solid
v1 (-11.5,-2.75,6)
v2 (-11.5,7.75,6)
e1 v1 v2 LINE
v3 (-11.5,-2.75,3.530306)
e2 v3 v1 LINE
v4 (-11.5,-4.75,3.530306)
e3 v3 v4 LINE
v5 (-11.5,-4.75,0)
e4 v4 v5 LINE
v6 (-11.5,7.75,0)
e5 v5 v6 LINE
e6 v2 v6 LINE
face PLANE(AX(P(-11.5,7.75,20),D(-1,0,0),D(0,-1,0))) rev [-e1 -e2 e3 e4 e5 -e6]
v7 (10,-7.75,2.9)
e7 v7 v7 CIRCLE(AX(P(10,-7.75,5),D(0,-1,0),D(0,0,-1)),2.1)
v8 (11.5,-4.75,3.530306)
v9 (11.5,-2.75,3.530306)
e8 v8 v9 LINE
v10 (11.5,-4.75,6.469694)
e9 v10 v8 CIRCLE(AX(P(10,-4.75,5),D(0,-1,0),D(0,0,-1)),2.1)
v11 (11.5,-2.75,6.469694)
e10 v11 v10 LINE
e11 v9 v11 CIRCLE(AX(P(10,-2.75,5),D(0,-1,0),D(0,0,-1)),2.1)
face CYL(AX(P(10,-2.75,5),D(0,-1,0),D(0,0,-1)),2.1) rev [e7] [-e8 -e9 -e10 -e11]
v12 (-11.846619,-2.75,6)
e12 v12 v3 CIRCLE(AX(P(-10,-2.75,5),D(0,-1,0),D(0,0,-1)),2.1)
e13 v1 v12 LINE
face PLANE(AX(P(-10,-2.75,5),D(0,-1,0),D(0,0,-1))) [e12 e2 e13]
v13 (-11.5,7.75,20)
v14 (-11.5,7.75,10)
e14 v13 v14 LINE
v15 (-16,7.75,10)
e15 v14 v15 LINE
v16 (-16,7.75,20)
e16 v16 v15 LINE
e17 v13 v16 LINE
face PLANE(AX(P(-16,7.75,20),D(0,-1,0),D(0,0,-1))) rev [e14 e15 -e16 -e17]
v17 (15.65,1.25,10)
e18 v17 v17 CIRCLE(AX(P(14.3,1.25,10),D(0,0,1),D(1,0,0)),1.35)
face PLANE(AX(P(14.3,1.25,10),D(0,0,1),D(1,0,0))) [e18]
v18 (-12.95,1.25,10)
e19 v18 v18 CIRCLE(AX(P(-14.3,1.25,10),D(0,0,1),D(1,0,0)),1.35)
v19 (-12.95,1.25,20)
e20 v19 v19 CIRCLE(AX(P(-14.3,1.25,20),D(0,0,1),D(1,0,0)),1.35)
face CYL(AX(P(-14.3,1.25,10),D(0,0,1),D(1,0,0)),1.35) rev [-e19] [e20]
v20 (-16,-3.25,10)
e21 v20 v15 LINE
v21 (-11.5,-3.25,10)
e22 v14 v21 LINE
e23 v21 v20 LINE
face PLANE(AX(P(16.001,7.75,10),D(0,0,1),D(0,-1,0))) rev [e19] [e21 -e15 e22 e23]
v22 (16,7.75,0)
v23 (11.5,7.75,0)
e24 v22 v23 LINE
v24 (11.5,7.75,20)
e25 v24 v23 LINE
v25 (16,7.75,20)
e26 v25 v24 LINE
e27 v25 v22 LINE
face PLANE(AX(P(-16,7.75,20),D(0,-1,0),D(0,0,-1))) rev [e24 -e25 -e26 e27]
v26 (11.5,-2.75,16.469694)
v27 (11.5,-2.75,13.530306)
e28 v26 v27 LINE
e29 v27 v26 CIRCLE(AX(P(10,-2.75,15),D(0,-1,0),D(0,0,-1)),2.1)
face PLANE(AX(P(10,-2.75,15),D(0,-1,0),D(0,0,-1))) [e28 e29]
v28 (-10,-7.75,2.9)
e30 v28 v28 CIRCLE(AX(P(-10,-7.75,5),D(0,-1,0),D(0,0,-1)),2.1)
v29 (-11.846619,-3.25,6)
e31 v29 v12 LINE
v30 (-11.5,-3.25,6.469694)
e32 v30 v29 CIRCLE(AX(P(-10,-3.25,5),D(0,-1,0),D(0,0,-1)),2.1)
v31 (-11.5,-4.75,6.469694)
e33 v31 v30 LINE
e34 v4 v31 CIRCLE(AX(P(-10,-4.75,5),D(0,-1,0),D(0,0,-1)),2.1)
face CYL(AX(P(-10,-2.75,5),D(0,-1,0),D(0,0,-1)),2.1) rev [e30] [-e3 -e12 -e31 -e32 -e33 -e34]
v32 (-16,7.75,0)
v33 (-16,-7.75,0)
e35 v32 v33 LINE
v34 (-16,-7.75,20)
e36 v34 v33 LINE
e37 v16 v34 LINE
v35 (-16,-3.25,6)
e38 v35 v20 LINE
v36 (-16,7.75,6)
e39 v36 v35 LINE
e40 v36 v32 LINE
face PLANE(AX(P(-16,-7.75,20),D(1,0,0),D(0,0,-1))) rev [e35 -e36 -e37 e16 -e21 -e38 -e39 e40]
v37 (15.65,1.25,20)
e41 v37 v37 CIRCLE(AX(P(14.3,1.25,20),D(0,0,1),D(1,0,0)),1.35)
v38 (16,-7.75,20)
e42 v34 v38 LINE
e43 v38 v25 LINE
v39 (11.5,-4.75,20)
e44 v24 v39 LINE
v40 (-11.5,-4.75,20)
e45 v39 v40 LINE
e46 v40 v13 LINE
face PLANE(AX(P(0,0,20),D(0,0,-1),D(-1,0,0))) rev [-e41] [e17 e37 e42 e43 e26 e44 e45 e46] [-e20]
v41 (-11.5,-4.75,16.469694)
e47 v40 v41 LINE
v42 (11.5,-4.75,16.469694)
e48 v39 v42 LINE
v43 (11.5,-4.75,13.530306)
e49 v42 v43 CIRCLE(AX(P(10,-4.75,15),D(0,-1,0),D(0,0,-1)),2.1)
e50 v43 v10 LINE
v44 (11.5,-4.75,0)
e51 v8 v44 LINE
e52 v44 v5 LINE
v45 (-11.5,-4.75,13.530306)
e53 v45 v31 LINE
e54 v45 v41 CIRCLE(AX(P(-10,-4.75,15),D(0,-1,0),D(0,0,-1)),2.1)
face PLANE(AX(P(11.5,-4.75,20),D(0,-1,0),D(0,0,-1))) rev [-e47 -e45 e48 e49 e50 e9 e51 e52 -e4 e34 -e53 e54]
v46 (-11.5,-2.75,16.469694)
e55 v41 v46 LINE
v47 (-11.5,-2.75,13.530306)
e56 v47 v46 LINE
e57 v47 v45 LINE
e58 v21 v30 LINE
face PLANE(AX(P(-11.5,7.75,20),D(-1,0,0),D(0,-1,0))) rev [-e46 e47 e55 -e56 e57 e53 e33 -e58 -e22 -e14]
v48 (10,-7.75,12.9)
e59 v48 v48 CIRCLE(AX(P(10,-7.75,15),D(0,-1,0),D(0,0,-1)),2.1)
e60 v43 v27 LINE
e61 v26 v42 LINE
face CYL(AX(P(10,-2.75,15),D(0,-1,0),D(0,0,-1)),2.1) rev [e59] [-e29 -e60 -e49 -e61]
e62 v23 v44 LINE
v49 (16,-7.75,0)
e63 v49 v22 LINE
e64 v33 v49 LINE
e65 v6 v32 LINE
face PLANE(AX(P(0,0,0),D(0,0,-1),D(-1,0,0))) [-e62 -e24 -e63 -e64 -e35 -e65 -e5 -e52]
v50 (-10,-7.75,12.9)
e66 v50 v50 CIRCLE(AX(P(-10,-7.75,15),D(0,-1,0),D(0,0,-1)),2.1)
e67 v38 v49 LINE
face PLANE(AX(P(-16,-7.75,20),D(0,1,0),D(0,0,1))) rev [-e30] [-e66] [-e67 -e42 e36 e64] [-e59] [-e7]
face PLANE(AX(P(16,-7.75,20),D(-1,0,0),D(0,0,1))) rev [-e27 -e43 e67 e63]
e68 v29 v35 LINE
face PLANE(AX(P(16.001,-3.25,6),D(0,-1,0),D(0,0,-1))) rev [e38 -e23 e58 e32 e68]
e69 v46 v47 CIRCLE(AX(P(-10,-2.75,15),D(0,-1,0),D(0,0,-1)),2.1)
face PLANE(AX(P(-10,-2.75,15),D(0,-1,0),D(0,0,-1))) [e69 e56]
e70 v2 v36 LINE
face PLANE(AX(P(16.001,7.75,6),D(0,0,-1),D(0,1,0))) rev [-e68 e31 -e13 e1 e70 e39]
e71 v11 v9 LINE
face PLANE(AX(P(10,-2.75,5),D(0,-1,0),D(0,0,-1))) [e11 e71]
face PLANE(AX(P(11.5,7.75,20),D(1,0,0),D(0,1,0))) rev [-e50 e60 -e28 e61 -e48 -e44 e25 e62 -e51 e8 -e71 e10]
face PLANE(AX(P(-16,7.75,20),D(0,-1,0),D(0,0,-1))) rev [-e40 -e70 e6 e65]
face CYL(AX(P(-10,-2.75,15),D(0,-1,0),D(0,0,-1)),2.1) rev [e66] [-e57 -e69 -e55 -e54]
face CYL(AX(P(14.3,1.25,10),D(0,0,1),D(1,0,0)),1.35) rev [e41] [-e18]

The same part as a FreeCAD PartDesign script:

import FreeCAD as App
import Part
import Sketcher
from FreeCAD import Vector
Q = App.Units.Quantity

doc = App.newDocument("Part")
body = doc.addObject("PartDesign::Body", "Body")

# Sketch on XY plane
sketch1 = body.newObject("Sketcher::SketchObject", "Sketch")
sketch1.AttachmentSupport = (doc.getObject("XY_Plane"), [""])
sketch1.MapMode = "FlatFace"
sketch1.addGeometry(Part.LineSegment(Vector(-16, 8, 0), Vector(-16, -8, 0)), False)
sketch1.addGeometry(Part.LineSegment(Vector(-16, -8, 0), Vector(16, -8, 0)), False)
sketch1.addGeometry(Part.LineSegment(Vector(16, -8, 0), Vector(16, 8, 0)), False)
sketch1.addGeometry(Part.LineSegment(Vector(16, 8, 0), Vector(-16, 8, 0)), False)
sketch1.addConstraint(Sketcher.Constraint("Coincident", 0, 2, 1, 1))
sketch1.addConstraint(Sketcher.Constraint("Coincident", 1, 2, 2, 1))
sketch1.addConstraint(Sketcher.Constraint("Coincident", 2, 2, 3, 1))
sketch1.addConstraint(Sketcher.Constraint("Coincident", 3, 2, 0, 1))
sketch1.addConstraint(Sketcher.Constraint("Vertical", 0))
sketch1.addConstraint(Sketcher.Constraint("Horizontal", 1))
sketch1.addConstraint(Sketcher.Constraint("Vertical", 2))
sketch1.addConstraint(Sketcher.Constraint("Horizontal", 3))
sketch1.addConstraint(Sketcher.Constraint("Symmetric", 0, 2, 2, 2, -1, 1))
sketch1.addConstraint(Sketcher.Constraint("DistanceX", 1, 1, 1, 2, Q("32 mm")))
sketch1.addConstraint(Sketcher.Constraint("DistanceY", 0, 2, 0, 1, Q("15.5 mm")))
pad1 = body.newObject("PartDesign::Pad", "Pad")
pad1.Profile = sketch1
pad1.Length = 20

# Sketch on XY plane
sketch2 = body.newObject("Sketcher::SketchObject", "Sketch001")
sketch2.AttachmentSupport = (doc.getObject("XY_Plane"), [""])
sketch2.MapMode = "FlatFace"
sketch2.addGeometry(Part.LineSegment(Vector(12, 8, 0), Vector(12, -5, 0)), False)
sketch2.addGeometry(Part.LineSegment(Vector(12, -5, 0), Vector(-12, -5, 0)), False)
sketch2.addGeometry(Part.LineSegment(Vector(-12, -5, 0), Vector(-12, 8, 0)), False)
sketch2.addGeometry(Part.LineSegment(Vector(-12, 8, 0), Vector(12, 8, 0)), False)
sketch2.addConstraint(Sketcher.Constraint("Coincident", 0, 2, 1, 1))
sketch2.addConstraint(Sketcher.Constraint("Coincident", 1, 2, 2, 1))
sketch2.addConstraint(Sketcher.Constraint("Coincident", 2, 2, 3, 1))
sketch2.addConstraint(Sketcher.Constraint("Coincident", 3, 2, 0, 1))
sketch2.addConstraint(Sketcher.Constraint("Vertical", 0))
sketch2.addConstraint(Sketcher.Constraint("Horizontal", 1))
sketch2.addConstraint(Sketcher.Constraint("Vertical", 2))
sketch2.addConstraint(Sketcher.Constraint("Horizontal", 3))
sketch2.addConstraint(Sketcher.Constraint("DistanceX", 1, 2, 1, 1, Q("23 mm")))
sketch2.addConstraint(Sketcher.Constraint("DistanceY", 0, 2, 0, 1, Q("12.5 mm")))
sketch2.addConstraint(Sketcher.Constraint("DistanceX", -1, 1, 0, 2, Q("11.5 mm")))
sketch2.addConstraint(Sketcher.Constraint("DistanceY", 0, 2, -1, 1, Q("4.75 mm")))
pocket1 = body.newObject("PartDesign::Pocket", "Pocket")
pocket1.Profile = sketch2
pocket1.Type = "ThroughAll"
pocket1.Reversed = True

# Sketch on YZ plane
sketch3 = body.newObject("Sketcher::SketchObject", "Sketch002")
sketch3.AttachmentSupport = (doc.getObject("YZ_Plane"), [""])
sketch3.MapMode = "FlatFace"
sketch3.AttachmentOffset = App.Placement(Vector(0, 0, -16), App.Rotation())
sketch3.addGeometry(Part.LineSegment(Vector(7.8, 6, 0), Vector(-3.2, 6, 0)), False)
sketch3.addGeometry(Part.LineSegment(Vector(-3.2, 6, 0), Vector(-3.2, 10, 0)), False)
sketch3.addGeometry(Part.LineSegment(Vector(-3.2, 10, 0), Vector(7.8, 10, 0)), False)
sketch3.addGeometry(Part.LineSegment(Vector(7.8, 10, 0), Vector(7.8, 6, 0)), False)
sketch3.addConstraint(Sketcher.Constraint("Coincident", 0, 2, 1, 1))
sketch3.addConstraint(Sketcher.Constraint("Coincident", 1, 2, 2, 1))
sketch3.addConstraint(Sketcher.Constraint("Coincident", 2, 2, 3, 1))
sketch3.addConstraint(Sketcher.Constraint("Coincident", 3, 2, 0, 1))
sketch3.addConstraint(Sketcher.Constraint("Horizontal", 0))
sketch3.addConstraint(Sketcher.Constraint("Vertical", 1))
sketch3.addConstraint(Sketcher.Constraint("Horizontal", 2))
sketch3.addConstraint(Sketcher.Constraint("Vertical", 3))
sketch3.addConstraint(Sketcher.Constraint("DistanceX", 0, 2, 0, 1, Q("11 mm")))
sketch3.addConstraint(Sketcher.Constraint("DistanceY", 1, 1, 1, 2, Q("4 mm")))
sketch3.addConstraint(Sketcher.Constraint("DistanceY", -1, 1, 0, 2, Q("6 mm")))
sketch3.addConstraint(Sketcher.Constraint("DistanceX", 0, 2, -1, 1, Q("3.25 mm")))
pocket2 = body.newObject("PartDesign::Pocket", "Pocket001")
pocket2.Profile = sketch3
pocket2.Type = "UpToFirst"
pocket2.Reversed = True

# Sketch on XY plane
sketch4 = body.newObject("Sketcher::SketchObject", "Sketch003")
sketch4.AttachmentSupport = (doc.getObject("XY_Plane"), [""])
sketch4.MapMode = "FlatFace"
sketch4.AttachmentOffset = App.Placement(Vector(0, 0, 20), App.Rotation())
sketch4.addGeometry(Part.Circle(Vector(-14.3, 1.2, 0), Vector(0, 0, 1), 1.4), False)
sketch4.addGeometry(Part.Circle(Vector(14.3, 1.2, 0), Vector(0, 0, 1), 1.4), False)
sketch4.addConstraint(Sketcher.Constraint("Equal", 0, 1))
sketch4.addConstraint(Sketcher.Constraint("Symmetric", 0, 3, 1, 3, -2))
sketch4.addConstraint(Sketcher.Constraint("Diameter", 0, Q("2.7 mm")))
sketch4.addConstraint(Sketcher.Constraint("DistanceX", 0, 3, -1, 1, Q("14.3 mm")))
sketch4.addConstraint(Sketcher.Constraint("DistanceY", -1, 1, 0, 3, Q("1.25 mm")))
pocket3 = body.newObject("PartDesign::Pocket", "Pocket002")
pocket3.Profile = sketch4
pocket3.Length = 10

# Sketch on XZ plane
sketch5 = body.newObject("Sketcher::SketchObject", "Sketch004")
sketch5.AttachmentSupport = (doc.getObject("XZ_Plane"), [""])
sketch5.MapMode = "FlatFace"
sketch5.AttachmentOffset = App.Placement(Vector(0, 0, 7.75), App.Rotation())
sketch5.addGeometry(Part.Circle(Vector(-10, 15, 0), Vector(0, 0, 1), 2.1), False)
sketch5.addGeometry(Part.Circle(Vector(10, 15, 0), Vector(0, 0, 1), 2.1), False)
sketch5.addGeometry(Part.Circle(Vector(10, 5, 0), Vector(0, 0, 1), 2.1), False)
sketch5.addGeometry(Part.Circle(Vector(-10, 5, 0), Vector(0, 0, 1), 2.1), False)
sketch5.addConstraint(Sketcher.Constraint("Equal", 0, 1))
sketch5.addConstraint(Sketcher.Constraint("Equal", 1, 2))
sketch5.addConstraint(Sketcher.Constraint("Equal", 2, 3))
sketch5.addConstraint(Sketcher.Constraint("Symmetric", 0, 3, 1, 3, -2))
sketch5.addConstraint(Sketcher.Constraint("Symmetric", 2, 3, 3, 3, -2))
sketch5.addConstraint(Sketcher.Constraint("Vertical", 1, 3, 2, 3))
sketch5.addConstraint(Sketcher.Constraint("Diameter", 0, Q("4.2 mm")))
sketch5.addConstraint(Sketcher.Constraint("DistanceX", 0, 3, -1, 1, Q("10 mm")))
sketch5.addConstraint(Sketcher.Constraint("DistanceY", -1, 1, 0, 3, Q("15 mm")))
sketch5.addConstraint(Sketcher.Constraint("DistanceY", -1, 1, 2, 3, Q("5 mm")))
pocket4 = body.newObject("PartDesign::Pocket", "Pocket003")
pocket4.Profile = sketch5
pocket4.Length = 5

doc.recompute()
